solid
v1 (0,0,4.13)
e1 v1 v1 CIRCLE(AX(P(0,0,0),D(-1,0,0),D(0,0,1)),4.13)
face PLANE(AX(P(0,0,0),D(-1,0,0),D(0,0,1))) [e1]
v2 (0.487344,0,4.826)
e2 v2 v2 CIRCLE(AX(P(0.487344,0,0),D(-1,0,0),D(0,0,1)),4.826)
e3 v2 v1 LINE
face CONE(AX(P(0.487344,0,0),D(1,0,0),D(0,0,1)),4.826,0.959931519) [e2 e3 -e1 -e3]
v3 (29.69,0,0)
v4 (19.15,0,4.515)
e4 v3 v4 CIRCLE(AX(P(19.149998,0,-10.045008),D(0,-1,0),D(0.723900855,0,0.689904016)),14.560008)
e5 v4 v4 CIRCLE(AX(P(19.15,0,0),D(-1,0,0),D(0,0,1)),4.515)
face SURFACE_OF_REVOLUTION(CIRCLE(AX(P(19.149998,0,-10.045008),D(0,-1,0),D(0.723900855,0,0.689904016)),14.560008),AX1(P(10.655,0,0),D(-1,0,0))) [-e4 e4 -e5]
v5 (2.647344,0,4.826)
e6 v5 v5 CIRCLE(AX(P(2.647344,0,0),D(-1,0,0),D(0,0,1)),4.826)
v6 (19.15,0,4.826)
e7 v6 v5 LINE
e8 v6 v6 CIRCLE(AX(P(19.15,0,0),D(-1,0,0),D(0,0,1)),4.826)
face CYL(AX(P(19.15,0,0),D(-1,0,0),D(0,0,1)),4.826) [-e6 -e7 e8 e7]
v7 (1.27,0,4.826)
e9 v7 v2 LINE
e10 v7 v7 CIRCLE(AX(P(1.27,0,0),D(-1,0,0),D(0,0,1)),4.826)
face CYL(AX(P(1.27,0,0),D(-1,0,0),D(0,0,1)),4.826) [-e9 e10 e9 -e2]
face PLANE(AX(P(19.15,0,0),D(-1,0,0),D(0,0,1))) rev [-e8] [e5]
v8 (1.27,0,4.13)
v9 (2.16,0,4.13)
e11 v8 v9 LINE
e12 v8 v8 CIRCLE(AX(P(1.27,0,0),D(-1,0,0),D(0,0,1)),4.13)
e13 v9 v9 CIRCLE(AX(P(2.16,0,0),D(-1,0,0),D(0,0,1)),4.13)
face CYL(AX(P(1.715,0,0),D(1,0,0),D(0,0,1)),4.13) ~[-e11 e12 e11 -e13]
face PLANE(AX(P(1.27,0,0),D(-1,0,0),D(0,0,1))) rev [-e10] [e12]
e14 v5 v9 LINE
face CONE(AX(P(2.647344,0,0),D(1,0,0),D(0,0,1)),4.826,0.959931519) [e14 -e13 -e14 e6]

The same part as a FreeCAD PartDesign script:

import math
import FreeCAD as App
import Part
import Sketcher

V = App.Vector

doc = App.newDocument("Part")
params = doc.addObject("Spreadsheet::Sheet", "Params")
for row, (alias, value) in enumerate([
    ("sketch1_width", "0.89 mm"),
    ("sketch1_width2", "29.69 mm"),
    ("sketch1_height", "4.13 mm"),
    ("revolution_angle", "360 deg"),
], start=1):
    params.set(f"A{row}", alias)
    params.set(f"B{row}", "=" + value)
    params.setAlias(f"B{row}", alias)

body = doc.addObject("PartDesign::Body", "Body")

# Sketch on XZ plane
sketch1 = doc.addObject("Sketcher::SketchObject", "Sketch")
body.addObject(sketch1)
sketch1.AttachmentSupport = (doc.XZ_Plane, [""])
sketch1.MapMode = "FlatFace"
sketch1.addGeometry(Part.ArcOfCircle(Part.Circle(V(19.15, -10.05, 0), V(0, 0, 1), 14.56), math.radians(44), math.radians(90)), False)
sketch1.addGeometry(Part.LineSegment(V(19.15, 4.51, 0), V(19.15, 4.83, 0)), False)
sketch1.addGeometry(Part.LineSegment(V(19.15, 4.83, 0), V(2.65, 4.83, 0)), False)
sketch1.addGeometry(Part.LineSegment(V(2.65, 4.83, 0), V(2.16, 4.13, 0)), False)
sketch1.addGeometry(Part.LineSegment(V(2.16, 4.13, 0), V(1.27, 4.13, 0)), False)
sketch1.addGeometry(Part.LineSegment(V(1.27, 4.13, 0), V(1.27, 4.83, 0)), False)
sketch1.addGeometry(Part.LineSegment(V(1.27, 4.83, 0), V(0.49, 4.83, 0)), False)
sketch1.addGeometry(Part.LineSegment(V(0.49, 4.83, 0), V(0, 4.13, 0)), False)
sketch1.addGeometry(Part.LineSegment(V(0, 4.13, 0), V(0, 0, 0)), False)
sketch1.addGeometry(Part.LineSegment(V(0, 0, 0), V(29.69, 0, 0)), False)
sketch1.addConstraint(Sketcher.Constraint("Coincident", 0, 2, 1, 1))
sketch1.addConstraint(Sketcher.Constraint("Coincident", 1, 2, 2, 1))
sketch1.addConstraint(Sketcher.Constraint("Coincident", 2, 2, 3, 1))
sketch1.addConstraint(Sketcher.Constraint("Coincident", 3, 2, 4, 1))
sketch1.addConstraint(Sketcher.Constraint("Coincident", 4, 2, 5, 1))
sketch1.addConstraint(Sketcher.Constraint("Coincident", 5, 2, 6, 1))
sketch1.addConstraint(Sketcher.Constraint("Coincident", 6, 2, 7, 1))
sketch1.addConstraint(Sketcher.Constraint("Coincident", 7, 2, 8, 1))
sketch1.addConstraint(Sketcher.Constraint("Coincident", 8, 2, 9, 1))
sketch1.addConstraint(Sketcher.Constraint("Coincident", 9, 2, 0, 1))
sketch1.addConstraint(Sketcher.Constraint("Vertical", 1))
sketch1.addConstraint(Sketcher.Constraint("Horizontal", 2))
sketch1.addConstraint(Sketcher.Constraint("Horizontal", 4))
sketch1.addConstraint(Sketcher.Constraint("Vertical", 5))
sketch1.addConstraint(Sketcher.Constraint("Horizontal", 6))
sketch1.addConstraint(Sketcher.Constraint("Vertical", 8))
sketch1.addConstraint(Sketcher.Constraint("Horizontal", 9))
sketch1.addConstraint(Sketcher.Constraint("Coincident", 8, 2, -1, 1))
sketch1.addConstraint(Sketcher.Constraint("Parallel", 3, 7))
sketch1.addConstraint(Sketcher.Constraint("Horizontal", 2, 2, 5, 2))
sketch1.addConstraint(Sketcher.Constraint("Horizontal", 4, 2, 7, 2))
sketch1.addConstraint(Sketcher.Constraint("DistanceX", 4, 2, 4, 1, 0.89))
sketch1.addConstraint(Sketcher.Constraint("DistanceX", 9, 1, 9, 2, 29.69))
sketch1.addConstraint(Sketcher.Constraint("DistanceY", 8, 2, 8, 1, 4.13))
sketch1.addConstraint(Sketcher.Constraint("DistanceY", 1, 1, 1, 2, 0.311))
sketch1.addConstraint(Sketcher.Constraint("DistanceY", 5, 1, 5, 2, 0.696))
sketch1.addConstraint(Sketcher.Constraint("DistanceX", -1, 1, 0, 2, 19.15))
sketch1.addConstraint(Sketcher.Constraint("DistanceX", -1, 1, 3, 2, 2.16))
sketch1.addConstraint(Sketcher.Constraint("Radius", 0, 14.560008))
sketch1.addConstraint(Sketcher.Constraint("Distance", 3, 0.849659))
sketch1.setExpression("Constraints[21]", "Params.sketch1_width")
sketch1.setExpression("Constraints[22]", "Params.sketch1_width2")
sketch1.setExpression("Constraints[23]", "Params.sketch1_height")
revolution = doc.addObject("PartDesign::Revolution", "Revolution")
body.addObject(revolution)
revolution.Profile = sketch1
revolution.ReferenceAxis = (sketch1, ["H_Axis"])
revolution.setExpression("Angle", "Params.revolution_angle")

doc.recompute()
